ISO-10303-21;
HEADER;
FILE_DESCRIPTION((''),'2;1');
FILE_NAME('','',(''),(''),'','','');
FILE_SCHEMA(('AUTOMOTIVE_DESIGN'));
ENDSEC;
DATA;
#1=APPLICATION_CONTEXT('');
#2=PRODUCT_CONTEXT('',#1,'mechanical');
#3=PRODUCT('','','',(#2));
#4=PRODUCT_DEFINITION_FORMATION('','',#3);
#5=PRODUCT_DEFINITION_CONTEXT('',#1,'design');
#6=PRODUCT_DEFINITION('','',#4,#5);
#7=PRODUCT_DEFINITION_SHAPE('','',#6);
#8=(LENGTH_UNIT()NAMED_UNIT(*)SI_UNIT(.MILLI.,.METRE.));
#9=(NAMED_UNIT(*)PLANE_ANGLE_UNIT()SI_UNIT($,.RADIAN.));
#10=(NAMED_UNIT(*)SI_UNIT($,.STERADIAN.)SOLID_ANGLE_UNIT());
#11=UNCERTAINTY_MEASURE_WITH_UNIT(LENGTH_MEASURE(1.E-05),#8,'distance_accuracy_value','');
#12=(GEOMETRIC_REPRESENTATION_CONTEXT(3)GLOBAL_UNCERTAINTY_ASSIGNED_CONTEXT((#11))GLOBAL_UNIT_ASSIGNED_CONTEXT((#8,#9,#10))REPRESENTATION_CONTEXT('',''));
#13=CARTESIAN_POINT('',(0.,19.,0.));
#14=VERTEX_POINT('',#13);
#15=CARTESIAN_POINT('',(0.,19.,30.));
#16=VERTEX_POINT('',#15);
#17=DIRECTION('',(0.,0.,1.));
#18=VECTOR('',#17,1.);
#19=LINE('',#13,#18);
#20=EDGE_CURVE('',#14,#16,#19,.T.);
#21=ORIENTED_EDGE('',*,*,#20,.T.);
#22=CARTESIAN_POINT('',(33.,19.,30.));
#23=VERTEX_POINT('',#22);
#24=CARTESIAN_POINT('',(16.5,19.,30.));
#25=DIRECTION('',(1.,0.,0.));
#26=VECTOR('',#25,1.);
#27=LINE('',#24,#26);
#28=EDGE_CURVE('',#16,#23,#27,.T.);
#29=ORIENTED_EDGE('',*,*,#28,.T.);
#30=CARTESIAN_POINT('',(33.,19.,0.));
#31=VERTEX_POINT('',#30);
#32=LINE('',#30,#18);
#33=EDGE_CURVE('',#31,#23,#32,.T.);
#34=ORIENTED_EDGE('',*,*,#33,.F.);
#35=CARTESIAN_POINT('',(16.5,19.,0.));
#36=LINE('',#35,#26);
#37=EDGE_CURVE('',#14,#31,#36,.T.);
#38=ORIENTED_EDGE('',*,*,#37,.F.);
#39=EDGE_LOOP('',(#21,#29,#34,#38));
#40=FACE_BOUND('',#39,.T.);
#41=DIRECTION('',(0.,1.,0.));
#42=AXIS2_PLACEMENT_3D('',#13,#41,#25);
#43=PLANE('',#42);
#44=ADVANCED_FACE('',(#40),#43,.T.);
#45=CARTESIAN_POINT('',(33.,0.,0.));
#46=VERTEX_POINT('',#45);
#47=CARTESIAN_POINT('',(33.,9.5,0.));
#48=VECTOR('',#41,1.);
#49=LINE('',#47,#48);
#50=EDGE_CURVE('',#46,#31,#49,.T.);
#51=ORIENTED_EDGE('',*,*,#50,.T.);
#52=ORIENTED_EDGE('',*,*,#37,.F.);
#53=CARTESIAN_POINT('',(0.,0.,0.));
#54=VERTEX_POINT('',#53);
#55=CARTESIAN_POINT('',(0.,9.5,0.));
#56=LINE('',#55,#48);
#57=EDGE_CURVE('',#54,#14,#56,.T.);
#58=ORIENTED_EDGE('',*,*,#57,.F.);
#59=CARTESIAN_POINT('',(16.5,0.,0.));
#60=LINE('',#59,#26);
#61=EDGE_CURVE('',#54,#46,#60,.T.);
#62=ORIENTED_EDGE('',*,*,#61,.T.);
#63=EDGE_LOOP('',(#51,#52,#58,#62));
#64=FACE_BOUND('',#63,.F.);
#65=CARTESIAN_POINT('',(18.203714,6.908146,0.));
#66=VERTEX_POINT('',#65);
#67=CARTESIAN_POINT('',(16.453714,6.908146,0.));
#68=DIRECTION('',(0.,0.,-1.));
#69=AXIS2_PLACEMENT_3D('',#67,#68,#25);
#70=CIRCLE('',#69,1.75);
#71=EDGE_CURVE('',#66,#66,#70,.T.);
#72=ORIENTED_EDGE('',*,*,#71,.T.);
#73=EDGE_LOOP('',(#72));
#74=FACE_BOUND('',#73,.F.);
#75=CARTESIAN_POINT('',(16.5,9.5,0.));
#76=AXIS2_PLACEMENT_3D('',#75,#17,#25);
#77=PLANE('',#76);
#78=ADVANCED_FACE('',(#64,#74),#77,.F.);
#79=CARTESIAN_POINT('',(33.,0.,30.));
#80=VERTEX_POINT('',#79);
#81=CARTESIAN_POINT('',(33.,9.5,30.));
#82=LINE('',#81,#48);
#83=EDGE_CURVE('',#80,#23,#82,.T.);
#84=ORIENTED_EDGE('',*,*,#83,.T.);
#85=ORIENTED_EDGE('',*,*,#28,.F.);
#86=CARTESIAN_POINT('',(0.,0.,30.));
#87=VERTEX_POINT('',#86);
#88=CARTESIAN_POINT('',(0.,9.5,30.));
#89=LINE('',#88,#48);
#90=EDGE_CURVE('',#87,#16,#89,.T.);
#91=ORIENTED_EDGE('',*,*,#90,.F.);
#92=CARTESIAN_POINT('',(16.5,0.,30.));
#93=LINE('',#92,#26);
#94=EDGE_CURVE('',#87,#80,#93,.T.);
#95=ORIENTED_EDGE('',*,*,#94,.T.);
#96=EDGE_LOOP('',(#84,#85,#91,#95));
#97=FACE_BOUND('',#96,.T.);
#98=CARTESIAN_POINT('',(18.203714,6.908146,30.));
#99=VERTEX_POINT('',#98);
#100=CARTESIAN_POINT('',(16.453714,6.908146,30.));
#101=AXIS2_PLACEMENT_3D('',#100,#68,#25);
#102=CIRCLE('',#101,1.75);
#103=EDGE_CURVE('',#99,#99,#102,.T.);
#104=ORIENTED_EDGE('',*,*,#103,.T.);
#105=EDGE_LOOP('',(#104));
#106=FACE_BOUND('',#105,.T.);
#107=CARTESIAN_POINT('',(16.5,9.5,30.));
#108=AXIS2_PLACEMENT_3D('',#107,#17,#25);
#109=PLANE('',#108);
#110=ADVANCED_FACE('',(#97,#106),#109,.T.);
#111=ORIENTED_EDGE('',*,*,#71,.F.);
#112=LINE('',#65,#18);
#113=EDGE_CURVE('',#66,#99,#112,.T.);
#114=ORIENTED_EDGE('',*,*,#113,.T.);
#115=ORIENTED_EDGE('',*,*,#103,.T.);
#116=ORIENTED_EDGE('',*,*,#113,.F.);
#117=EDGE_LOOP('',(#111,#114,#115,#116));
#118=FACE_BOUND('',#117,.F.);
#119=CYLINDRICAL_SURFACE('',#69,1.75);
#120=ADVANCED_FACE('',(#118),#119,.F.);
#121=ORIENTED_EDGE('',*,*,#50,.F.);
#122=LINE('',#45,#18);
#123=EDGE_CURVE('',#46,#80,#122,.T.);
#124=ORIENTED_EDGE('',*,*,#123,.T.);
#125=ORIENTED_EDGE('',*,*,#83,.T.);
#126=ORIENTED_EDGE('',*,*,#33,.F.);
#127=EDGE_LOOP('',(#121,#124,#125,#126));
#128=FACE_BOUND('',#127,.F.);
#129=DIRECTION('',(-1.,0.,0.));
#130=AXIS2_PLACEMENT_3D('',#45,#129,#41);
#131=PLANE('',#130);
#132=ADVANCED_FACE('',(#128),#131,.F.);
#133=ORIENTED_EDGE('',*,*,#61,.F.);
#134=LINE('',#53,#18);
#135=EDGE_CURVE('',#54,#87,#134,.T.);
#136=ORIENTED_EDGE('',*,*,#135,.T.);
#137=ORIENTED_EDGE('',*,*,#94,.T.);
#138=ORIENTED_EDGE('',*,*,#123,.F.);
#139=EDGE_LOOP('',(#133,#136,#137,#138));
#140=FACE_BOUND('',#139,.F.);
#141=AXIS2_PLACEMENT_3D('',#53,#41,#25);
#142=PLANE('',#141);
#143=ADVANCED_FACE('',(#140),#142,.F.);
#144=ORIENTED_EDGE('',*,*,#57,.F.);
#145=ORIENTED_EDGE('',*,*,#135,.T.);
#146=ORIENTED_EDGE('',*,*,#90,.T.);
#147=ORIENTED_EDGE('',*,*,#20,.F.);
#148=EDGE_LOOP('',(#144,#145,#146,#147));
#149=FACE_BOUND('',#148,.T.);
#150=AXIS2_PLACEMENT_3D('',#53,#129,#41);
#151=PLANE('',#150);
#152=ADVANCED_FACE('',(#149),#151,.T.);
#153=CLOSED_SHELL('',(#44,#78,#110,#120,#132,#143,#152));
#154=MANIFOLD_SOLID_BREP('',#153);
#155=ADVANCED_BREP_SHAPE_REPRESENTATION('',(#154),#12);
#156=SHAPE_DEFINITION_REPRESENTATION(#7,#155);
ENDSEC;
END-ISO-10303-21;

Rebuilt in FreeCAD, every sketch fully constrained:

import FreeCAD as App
import Part
import Sketcher

doc = App.newDocument("Part")
params = doc.addObject("Spreadsheet::Sheet", "Params")
for row, (alias, value) in enumerate([
    ("sketch1_width", "33 mm"),
    ("sketch1_height", "19 mm"),
    ("pad1_length", "30 mm"),
    ("sketch2_diameter", "3.5 mm"),
], start=1):
    params.set(f"A{row}", alias)
    params.set(f"B{row}", "=" + value)
    params.setAlias(f"B{row}", alias)

body = doc.addObject("PartDesign::Body", "Body")

sketch1 = body.newObject("Sketcher::SketchObject", "Sketch")
sketch1.AttachmentSupport = (doc.getObject("XY_Plane"), [""])
sketch1.MapMode = "FlatFace"
sketch1.addGeometry([
    Part.LineSegment(App.Vector(0, 19, 0), App.Vector(0, 0, 0)),
    Part.LineSegment(App.Vector(0, 0, 0), App.Vector(33, 0, 0)),
    Part.LineSegment(App.Vector(33, 0, 0), App.Vector(33, 19, 0)),
    Part.LineSegment(App.Vector(33, 19, 0), App.Vector(0, 19, 0)),
], False)
sketch1.addConstraint([
    Sketcher.Constraint("Coincident", 0, 2, 1, 1),
    Sketcher.Constraint("Coincident", 1, 2, 2, 1),
    Sketcher.Constraint("Coincident", 2, 2, 3, 1),
    Sketcher.Constraint("Coincident", 3, 2, 0, 1),
    Sketcher.Constraint("Vertical", 0),
    Sketcher.Constraint("Horizontal", 1),
    Sketcher.Constraint("Vertical", 2),
    Sketcher.Constraint("Horizontal", 3),
    Sketcher.Constraint("Coincident", 0, 2, -1, 1),
    Sketcher.Constraint("DistanceX", 1, 1, 1, 2, 33.0),
    Sketcher.Constraint("DistanceY", 0, 2, 0, 1, 19.0),
])
sketch1.setExpression("Constraints[9]", "Params.sketch1_width")
sketch1.setExpression("Constraints[10]", "Params.sketch1_height")
pad1 = body.newObject("PartDesign::Pad", "Pad")
pad1.Profile = sketch1
pad1.setExpression("Length", "Params.pad1_length")

sketch2 = body.newObject("Sketcher::SketchObject", "Sketch001")
sketch2.AttachmentSupport = (doc.getObject("XY_Plane"), [""])
sketch2.MapMode = "FlatFace"
sketch2.addGeometry(Part.Circle(App.Vector(16.453714, 6.908146, 0), App.Vector(0, 0, 1), 1.75), False)
sketch2.addConstraint([
    Sketcher.Constraint("Diameter", 0, 3.5),
    Sketcher.Constraint("DistanceX", -1, 1, 0, 3, 16.453714),
    Sketcher.Constraint("DistanceY", -1, 1, 0, 3, 6.908146),
])
sketch2.setExpression("Constraints[0]", "Params.sketch2_diameter")
pocket1 = body.newObject("PartDesign::Pocket", "Pocket")
pocket1.Profile = sketch2
pocket1.Type = "ThroughAll"
pocket1.Reversed = True

doc.recompute()
